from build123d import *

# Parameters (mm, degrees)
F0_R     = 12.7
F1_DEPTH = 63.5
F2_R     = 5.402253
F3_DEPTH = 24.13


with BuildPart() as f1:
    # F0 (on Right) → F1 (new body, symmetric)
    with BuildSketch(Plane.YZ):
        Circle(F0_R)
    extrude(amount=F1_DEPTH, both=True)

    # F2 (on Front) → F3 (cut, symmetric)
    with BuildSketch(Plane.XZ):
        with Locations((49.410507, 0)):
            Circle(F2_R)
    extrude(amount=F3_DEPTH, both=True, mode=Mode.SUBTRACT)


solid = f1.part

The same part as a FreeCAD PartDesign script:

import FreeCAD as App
import Part
import Sketcher
from FreeCAD import Vector
Q = App.Units.Quantity

doc = App.newDocument("Part")
params = doc.addObject("Spreadsheet::Sheet", "Params")
for row, (alias, value) in enumerate([
    ("sketch1_diameter", "1 in"),
    ("pad1_length", "5 in"),
    ("pocket1_length", "1.9 in"),
], start=1):
    params.set(f"A{row}", alias)
    params.set(f"B{row}", "=" + value)
    params.setAlias(f"B{row}", alias)

body = doc.addObject("PartDesign::Body", "Body")

# Sketch on YZ plane
sketch1 = doc.addObject("Sketcher::SketchObject", "Sketch")
body.addObject(sketch1)
sketch1.AttachmentSupport = (doc.YZ_Plane, [""])
sketch1.MapMode = "FlatFace"
sketch1.addGeometry(Part.Circle(Vector(0, 0, 0), Vector(0, 0, 1), 12.7), False)
sketch1.addConstraint(Sketcher.Constraint("Coincident", 0, 3, -1, 1))
sketch1.addConstraint(Sketcher.Constraint("Diameter", 0, Q("1 in")))
sketch1.setExpression("Constraints[1]", "Params.sketch1_diameter")
pad1 = doc.addObject("PartDesign::Pad", "Pad")
body.addObject(pad1)
pad1.Profile = sketch1
pad1.setExpression("Length", "Params.pad1_length")
pad1.Midplane = True

# Sketch on XZ plane
sketch2 = doc.addObject("Sketcher::SketchObject", "Sketch001")
body.addObject(sketch2)
sketch2.AttachmentSupport = (doc.XZ_Plane, [""])
sketch2.MapMode = "FlatFace"
sketch2.addGeometry(Part.Circle(Vector(49.410507, 0, 0), Vector(0, 0, 1), 5.402253), False)
sketch2.addConstraint(Sketcher.Constraint("PointOnObject", 0, 3, -1))
sketch2.addConstraint(Sketcher.Constraint("Diameter", 0, 10.804506))
sketch2.addConstraint(Sketcher.Constraint("DistanceX", -1, 1, 0, 3, 49.410507))
pocket1 = doc.addObject("PartDesign::Pocket", "Pocket")
body.addObject(pocket1)
pocket1.Profile = sketch2
pocket1.setExpression("Length", "Params.pocket1_length")
pocket1.Midplane = True

doc.recompute()
